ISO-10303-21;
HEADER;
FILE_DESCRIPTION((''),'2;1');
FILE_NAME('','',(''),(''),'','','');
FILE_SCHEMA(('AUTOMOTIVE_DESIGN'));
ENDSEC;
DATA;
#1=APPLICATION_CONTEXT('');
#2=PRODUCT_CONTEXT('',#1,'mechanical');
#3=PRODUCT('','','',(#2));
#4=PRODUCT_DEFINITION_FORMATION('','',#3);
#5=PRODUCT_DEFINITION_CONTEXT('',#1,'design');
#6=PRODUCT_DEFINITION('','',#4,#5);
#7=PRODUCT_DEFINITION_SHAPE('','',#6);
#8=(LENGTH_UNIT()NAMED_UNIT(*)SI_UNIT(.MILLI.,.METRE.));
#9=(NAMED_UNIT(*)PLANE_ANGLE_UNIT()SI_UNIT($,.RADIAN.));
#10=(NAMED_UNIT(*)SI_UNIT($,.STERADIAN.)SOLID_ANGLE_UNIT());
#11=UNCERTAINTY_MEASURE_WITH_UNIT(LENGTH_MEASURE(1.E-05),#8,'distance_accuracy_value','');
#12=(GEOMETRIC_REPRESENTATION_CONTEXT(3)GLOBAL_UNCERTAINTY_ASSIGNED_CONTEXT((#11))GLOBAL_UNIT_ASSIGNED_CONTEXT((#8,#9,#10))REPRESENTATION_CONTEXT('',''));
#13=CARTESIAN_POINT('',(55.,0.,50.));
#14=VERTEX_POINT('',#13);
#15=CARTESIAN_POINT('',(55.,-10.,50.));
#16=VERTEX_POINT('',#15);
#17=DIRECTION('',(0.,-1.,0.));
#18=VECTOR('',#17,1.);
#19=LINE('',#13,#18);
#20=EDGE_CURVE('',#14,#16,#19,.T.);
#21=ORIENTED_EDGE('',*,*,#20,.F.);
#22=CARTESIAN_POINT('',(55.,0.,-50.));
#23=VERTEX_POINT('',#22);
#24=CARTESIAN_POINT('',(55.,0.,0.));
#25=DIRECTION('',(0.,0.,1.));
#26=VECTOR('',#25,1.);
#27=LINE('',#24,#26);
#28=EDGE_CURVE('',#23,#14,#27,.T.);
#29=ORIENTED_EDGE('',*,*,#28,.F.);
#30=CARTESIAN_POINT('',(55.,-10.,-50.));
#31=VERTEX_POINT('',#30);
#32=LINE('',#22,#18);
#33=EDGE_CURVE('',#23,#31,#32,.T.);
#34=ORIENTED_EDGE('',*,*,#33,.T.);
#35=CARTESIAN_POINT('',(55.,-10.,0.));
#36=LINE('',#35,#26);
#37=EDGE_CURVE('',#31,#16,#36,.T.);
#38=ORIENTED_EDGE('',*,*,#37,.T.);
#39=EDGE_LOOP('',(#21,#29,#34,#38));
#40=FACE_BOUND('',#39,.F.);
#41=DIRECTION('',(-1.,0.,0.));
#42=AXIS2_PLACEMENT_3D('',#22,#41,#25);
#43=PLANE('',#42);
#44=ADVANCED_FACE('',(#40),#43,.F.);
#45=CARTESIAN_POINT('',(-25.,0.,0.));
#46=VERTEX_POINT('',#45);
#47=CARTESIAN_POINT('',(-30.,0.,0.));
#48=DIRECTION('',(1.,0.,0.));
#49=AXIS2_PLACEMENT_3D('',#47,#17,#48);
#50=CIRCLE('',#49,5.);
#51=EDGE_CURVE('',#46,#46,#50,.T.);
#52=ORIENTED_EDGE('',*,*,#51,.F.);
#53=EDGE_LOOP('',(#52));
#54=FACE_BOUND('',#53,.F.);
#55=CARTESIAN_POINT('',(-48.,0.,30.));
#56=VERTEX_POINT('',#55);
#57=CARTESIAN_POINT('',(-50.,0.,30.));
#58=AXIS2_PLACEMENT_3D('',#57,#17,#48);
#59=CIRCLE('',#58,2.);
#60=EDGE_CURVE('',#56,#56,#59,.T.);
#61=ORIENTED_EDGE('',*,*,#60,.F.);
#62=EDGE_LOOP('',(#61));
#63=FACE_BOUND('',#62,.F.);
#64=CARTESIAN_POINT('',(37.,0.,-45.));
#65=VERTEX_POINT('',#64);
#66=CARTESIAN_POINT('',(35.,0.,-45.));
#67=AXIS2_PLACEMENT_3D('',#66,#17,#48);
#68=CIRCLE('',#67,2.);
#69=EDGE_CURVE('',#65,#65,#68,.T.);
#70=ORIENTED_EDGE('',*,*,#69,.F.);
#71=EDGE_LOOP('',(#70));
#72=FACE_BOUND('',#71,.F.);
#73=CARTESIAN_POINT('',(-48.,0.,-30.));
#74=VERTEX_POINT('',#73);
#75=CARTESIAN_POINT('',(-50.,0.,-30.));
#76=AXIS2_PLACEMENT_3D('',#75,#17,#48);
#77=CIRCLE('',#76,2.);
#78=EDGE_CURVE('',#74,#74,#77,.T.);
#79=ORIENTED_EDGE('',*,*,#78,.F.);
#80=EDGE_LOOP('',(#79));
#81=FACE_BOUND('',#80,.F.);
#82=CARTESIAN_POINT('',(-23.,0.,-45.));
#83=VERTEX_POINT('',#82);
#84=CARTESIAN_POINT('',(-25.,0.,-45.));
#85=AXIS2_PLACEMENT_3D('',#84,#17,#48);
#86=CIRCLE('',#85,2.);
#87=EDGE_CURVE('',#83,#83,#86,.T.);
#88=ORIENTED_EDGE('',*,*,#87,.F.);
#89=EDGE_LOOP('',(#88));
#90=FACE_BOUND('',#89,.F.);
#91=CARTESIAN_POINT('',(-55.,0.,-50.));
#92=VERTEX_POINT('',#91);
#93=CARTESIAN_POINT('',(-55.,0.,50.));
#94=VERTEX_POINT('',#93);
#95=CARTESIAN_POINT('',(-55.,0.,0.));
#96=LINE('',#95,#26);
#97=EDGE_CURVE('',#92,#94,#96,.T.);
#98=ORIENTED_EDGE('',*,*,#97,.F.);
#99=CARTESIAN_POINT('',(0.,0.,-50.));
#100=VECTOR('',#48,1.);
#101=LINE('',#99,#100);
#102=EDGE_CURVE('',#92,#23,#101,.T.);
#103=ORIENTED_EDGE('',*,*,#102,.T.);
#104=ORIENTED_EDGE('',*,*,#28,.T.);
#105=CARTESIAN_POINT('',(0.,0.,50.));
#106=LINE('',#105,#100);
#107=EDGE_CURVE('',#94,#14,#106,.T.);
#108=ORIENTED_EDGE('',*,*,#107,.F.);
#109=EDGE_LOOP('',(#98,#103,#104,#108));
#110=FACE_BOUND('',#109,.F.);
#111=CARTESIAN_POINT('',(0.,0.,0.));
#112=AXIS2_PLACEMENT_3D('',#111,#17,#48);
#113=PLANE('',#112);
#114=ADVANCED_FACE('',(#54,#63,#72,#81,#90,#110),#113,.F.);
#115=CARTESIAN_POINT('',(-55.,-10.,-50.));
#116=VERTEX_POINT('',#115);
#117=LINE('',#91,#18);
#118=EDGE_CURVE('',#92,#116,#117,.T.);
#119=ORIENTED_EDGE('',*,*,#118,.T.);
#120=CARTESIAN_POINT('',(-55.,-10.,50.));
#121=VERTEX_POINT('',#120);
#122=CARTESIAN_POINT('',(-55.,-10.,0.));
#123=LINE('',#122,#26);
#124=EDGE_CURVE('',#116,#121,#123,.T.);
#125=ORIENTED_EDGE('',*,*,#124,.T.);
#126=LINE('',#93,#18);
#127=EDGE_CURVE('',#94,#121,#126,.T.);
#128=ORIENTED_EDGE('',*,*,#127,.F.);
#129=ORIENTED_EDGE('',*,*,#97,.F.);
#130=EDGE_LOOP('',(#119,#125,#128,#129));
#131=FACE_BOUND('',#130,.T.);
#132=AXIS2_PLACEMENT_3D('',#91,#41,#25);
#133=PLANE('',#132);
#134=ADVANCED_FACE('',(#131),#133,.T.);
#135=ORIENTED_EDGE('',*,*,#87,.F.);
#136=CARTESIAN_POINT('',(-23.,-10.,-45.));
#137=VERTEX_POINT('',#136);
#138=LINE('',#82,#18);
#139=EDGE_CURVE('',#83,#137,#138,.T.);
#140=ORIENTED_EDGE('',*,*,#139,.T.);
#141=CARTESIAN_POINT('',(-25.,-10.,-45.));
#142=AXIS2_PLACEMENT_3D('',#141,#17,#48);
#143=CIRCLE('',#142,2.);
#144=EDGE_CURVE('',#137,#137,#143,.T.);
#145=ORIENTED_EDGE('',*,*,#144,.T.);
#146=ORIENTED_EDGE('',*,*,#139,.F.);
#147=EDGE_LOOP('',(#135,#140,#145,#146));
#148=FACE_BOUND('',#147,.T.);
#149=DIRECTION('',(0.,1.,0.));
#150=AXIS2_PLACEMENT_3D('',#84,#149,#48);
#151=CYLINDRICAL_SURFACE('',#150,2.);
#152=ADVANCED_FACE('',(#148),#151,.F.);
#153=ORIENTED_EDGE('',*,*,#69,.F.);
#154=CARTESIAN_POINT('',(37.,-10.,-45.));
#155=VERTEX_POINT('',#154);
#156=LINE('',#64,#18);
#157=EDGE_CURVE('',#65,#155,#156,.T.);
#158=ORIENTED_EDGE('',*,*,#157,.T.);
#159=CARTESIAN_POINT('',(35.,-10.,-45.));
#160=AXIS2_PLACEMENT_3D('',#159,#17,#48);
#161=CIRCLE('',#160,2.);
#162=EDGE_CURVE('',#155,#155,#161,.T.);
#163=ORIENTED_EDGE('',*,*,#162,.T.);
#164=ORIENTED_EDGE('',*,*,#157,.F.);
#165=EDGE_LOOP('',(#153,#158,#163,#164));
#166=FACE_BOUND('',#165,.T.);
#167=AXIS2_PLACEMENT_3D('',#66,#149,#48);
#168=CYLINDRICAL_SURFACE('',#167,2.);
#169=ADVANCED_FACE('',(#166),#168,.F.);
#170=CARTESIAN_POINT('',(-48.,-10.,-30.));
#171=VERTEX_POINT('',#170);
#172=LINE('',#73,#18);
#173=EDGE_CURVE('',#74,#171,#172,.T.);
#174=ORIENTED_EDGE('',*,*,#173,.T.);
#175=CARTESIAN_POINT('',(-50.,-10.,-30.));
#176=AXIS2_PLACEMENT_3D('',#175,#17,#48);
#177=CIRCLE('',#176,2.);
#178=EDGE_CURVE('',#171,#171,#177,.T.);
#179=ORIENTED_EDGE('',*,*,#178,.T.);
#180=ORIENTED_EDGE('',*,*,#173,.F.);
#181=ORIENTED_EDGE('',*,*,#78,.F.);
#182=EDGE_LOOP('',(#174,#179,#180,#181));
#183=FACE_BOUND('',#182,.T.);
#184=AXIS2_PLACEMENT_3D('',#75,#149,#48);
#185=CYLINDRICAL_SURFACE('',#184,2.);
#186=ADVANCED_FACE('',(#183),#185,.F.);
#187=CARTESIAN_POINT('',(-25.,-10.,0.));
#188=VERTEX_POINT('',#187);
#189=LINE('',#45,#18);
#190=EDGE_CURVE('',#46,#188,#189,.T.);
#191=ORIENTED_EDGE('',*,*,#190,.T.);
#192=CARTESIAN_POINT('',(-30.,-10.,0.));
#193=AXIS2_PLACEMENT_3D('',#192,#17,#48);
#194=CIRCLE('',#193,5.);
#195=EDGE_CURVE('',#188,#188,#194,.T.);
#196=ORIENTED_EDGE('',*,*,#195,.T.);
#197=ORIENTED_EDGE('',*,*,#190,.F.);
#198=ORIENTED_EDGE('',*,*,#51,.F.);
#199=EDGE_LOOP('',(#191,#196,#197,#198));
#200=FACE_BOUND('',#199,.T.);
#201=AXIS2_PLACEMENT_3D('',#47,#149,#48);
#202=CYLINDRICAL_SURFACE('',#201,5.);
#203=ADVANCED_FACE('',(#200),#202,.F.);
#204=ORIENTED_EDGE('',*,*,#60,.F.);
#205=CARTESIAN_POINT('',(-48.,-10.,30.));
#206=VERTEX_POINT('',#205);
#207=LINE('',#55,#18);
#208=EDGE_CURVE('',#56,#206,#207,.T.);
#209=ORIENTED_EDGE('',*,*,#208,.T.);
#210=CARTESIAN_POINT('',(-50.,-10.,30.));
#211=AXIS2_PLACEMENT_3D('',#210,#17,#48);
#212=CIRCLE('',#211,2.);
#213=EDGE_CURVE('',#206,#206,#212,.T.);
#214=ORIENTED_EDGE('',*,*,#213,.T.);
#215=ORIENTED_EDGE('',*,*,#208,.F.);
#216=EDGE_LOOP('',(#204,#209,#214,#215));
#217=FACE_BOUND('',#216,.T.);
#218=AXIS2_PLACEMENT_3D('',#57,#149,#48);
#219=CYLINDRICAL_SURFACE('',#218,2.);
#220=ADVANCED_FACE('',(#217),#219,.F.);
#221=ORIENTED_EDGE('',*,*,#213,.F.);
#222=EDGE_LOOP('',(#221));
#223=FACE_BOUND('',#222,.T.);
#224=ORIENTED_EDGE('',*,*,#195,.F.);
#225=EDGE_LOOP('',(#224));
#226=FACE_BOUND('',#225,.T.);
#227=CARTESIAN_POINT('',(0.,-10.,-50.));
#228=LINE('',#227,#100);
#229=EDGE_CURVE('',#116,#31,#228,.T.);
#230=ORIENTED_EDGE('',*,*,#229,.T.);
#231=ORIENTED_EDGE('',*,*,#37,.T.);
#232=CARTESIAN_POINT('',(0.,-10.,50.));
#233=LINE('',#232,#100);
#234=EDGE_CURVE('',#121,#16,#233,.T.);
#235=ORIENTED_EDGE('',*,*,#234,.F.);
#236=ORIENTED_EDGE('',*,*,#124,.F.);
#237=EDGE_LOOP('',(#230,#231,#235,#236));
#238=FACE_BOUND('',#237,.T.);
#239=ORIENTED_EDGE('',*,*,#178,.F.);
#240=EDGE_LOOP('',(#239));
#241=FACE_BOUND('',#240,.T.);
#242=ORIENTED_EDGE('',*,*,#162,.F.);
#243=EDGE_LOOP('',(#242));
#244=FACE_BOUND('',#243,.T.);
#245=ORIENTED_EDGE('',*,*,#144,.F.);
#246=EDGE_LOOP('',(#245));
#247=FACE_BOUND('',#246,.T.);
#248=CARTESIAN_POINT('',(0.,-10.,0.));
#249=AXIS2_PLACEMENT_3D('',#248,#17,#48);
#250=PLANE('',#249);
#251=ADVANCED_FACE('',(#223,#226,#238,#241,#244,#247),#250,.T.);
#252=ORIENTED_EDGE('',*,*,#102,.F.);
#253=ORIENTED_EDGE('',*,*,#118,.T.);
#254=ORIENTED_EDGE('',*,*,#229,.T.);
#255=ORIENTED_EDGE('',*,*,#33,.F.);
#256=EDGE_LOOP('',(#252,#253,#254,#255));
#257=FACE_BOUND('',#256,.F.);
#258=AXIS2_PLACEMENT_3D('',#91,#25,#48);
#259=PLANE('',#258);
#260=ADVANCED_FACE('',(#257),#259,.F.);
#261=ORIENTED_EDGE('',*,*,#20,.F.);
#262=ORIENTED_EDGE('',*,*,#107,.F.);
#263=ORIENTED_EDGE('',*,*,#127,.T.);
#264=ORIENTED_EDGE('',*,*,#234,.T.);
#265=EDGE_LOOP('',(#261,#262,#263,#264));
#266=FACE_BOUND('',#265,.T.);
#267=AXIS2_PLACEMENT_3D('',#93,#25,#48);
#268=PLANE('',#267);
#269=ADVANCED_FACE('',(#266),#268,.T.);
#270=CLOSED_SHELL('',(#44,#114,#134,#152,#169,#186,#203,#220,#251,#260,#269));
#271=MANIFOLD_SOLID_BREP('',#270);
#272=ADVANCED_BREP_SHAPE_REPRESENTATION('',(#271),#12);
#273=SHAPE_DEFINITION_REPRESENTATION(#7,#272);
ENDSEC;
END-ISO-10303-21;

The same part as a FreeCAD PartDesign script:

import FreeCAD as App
import Part
import Sketcher
from FreeCAD import Vector


def add_polygon(sketch, points):
    """Adds a closed chain of lines whose ends are joined by coincident constraints."""
    first, n = sketch.GeometryCount, len(points)
    for a, b in zip(points, points[1:] + points[:1]):
        sketch.addGeometry(Part.LineSegment(App.Vector(*a, 0), App.Vector(*b, 0)), False)
    for i in range(n):
        sketch.addConstraint(Sketcher.Constraint("Coincident", first + i, 2, first + (i + 1) % n, 1))

doc = App.newDocument("Part")
body = doc.addObject("PartDesign::Body", "Body")

# Sketch on XZ plane
sketch1 = doc.addObject("Sketcher::SketchObject", "Sketch")
body.addObject(sketch1)
sketch1.AttachmentSupport = (doc.XZ_Plane, [""])
sketch1.MapMode = "FlatFace"
add_polygon(sketch1, [(-55, 50), (-55, -50), (55, -50), (55, 50)])  # lines 0-3
sketch1.addGeometry(Part.Circle(Vector(-50, -30, 0), Vector(0, 0, 1), 2), False)  # 4
sketch1.addGeometry(Part.Circle(Vector(-25, -45, 0), Vector(0, 0, 1), 2), False)  # 5
sketch1.addGeometry(Part.Circle(Vector(35, -45, 0), Vector(0, 0, 1), 2), False)  # 6
sketch1.addGeometry(Part.Circle(Vector(-30, 0, 0), Vector(0, 0, 1), 5), False)  # 7
sketch1.addGeometry(Part.Circle(Vector(-50, 30, 0), Vector(0, 0, 1), 2), False)  # 8
sketch1.addConstraint(Sketcher.Constraint("Vertical", 0))
sketch1.addConstraint(Sketcher.Constraint("Horizontal", 1))
sketch1.addConstraint(Sketcher.Constraint("Vertical", 2))
sketch1.addConstraint(Sketcher.Constraint("Horizontal", 3))
sketch1.addConstraint(Sketcher.Constraint("Equal", 4, 5))
sketch1.addConstraint(Sketcher.Constraint("Equal", 5, 6))
sketch1.addConstraint(Sketcher.Constraint("Equal", 6, 8))
sketch1.addConstraint(Sketcher.Constraint("Symmetric", 0, 2, 2, 2, -1, 1))
sketch1.addConstraint(Sketcher.Constraint("Symmetric", 4, 3, 8, 3, -1))
sketch1.addConstraint(Sketcher.Constraint("PointOnObject", 7, 3, -1))
sketch1.addConstraint(Sketcher.Constraint("Horizontal", 5, 3, 6, 3))
sketch1.addConstraint(Sketcher.Constraint("Diameter", 4, 4.0))
sketch1.addConstraint(Sketcher.Constraint("Diameter", 7, 10.0))
sketch1.addConstraint(Sketcher.Constraint("DistanceX", 1, 1, 1, 2, 110.0))
sketch1.addConstraint(Sketcher.Constraint("DistanceY", 0, 2, 0, 1, 100.0))
sketch1.addConstraint(Sketcher.Constraint("DistanceX", 4, 3, -1, 1, 50.0))
sketch1.addConstraint(Sketcher.Constraint("DistanceY", 4, 3, -1, 1, 30.0))
sketch1.addConstraint(Sketcher.Constraint("DistanceX", 5, 3, -1, 1, 25.0))
sketch1.addConstraint(Sketcher.Constraint("DistanceY", 5, 3, -1, 1, 45.0))
sketch1.addConstraint(Sketcher.Constraint("DistanceX", -1, 1, 6, 3, 35.0))
sketch1.addConstraint(Sketcher.Constraint("DistanceX", 7, 3, -1, 1, 30.0))
pad1 = doc.addObject("PartDesign::Pad", "Pad")
body.addObject(pad1)
pad1.Profile = sketch1
pad1.Length = 10

doc.recompute()
